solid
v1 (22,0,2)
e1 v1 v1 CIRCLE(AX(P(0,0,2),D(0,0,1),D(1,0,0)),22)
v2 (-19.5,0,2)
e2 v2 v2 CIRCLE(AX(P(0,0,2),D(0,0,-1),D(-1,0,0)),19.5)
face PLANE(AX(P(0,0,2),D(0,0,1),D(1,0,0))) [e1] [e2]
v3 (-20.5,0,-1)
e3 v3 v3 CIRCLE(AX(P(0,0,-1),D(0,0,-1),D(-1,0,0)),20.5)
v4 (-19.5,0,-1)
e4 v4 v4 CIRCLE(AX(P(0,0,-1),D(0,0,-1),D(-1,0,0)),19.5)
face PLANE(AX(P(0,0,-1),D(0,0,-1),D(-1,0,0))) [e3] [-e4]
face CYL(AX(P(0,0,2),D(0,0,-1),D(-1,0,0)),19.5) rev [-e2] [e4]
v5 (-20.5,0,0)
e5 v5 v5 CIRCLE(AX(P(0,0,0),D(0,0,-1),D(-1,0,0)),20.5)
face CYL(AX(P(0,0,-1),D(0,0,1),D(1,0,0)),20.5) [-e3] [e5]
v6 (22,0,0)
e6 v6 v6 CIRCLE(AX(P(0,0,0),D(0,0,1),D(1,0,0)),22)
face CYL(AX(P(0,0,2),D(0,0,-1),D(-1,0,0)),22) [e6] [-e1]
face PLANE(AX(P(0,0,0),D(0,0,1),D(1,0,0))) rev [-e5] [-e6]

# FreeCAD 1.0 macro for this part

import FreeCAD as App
import Part
import Sketcher

V = App.Vector
Q = App.Units.Quantity

doc = App.newDocument("Part")
body = doc.addObject("PartDesign::Body", "Body")

# Sketch on XY plane
sketch1 = body.newObject("Sketcher::SketchObject", "Sketch")
sketch1.AttachmentSupport = (doc.getObject("XY_Plane"), [""])
sketch1.MapMode = "FlatFace"
sketch1.addGeometry(Part.Circle(V(0, 0, 0), V(0, 0, 1), 22), False)
sketch1.addConstraint([
    Sketcher.Constraint("Coincident", 0, 3, -1, 1),
    Sketcher.Constraint("Diameter", 0, Q("44 mm")),
])
pad1 = body.newObject("PartDesign::Pad", "Pad")
pad1.Profile = sketch1
pad1.Length = 2

# Sketch on XY plane
sketch2 = body.newObject("Sketcher::SketchObject", "Sketch001")
sketch2.AttachmentSupport = (doc.getObject("XY_Plane"), [""])
sketch2.MapMode = "FlatFace"
sketch2.addGeometry(Part.Circle(V(0, 0, 0), V(0, 0, 1), 20.5), False)
sketch2.addConstraint([
    Sketcher.Constraint("Coincident", 0, 3, -1, 1),
    Sketcher.Constraint("Diameter", 0, Q("41 mm")),
])
pad2 = body.newObject("PartDesign::Pad", "Pad001")
pad2.Profile = sketch2
pad2.Length = 1
pad2.Reversed = True

# Sketch on XY plane
sketch3 = body.newObject("Sketcher::SketchObject", "Sketch002")
sketch3.AttachmentSupport = (doc.getObject("XY_Plane"), [""])
sketch3.MapMode = "FlatFace"
sketch3.AttachmentOffset = App.Placement(V(0, 0, -1), App.Rotation())
sketch3.addGeometry(Part.Circle(V(0, 0, 0), V(0, 0, 1), 19.5), False)
sketch3.addConstraint([
    Sketcher.Constraint("Coincident", 0, 3, -1, 1),
    Sketcher.Constraint("Diameter", 0, Q("39 mm")),
])
pocket1 = body.newObject("PartDesign::Pocket", "Pocket")
pocket1.Profile = sketch3
pocket1.Type = "ThroughAll"
pocket1.Reversed = True

doc.recompute()
